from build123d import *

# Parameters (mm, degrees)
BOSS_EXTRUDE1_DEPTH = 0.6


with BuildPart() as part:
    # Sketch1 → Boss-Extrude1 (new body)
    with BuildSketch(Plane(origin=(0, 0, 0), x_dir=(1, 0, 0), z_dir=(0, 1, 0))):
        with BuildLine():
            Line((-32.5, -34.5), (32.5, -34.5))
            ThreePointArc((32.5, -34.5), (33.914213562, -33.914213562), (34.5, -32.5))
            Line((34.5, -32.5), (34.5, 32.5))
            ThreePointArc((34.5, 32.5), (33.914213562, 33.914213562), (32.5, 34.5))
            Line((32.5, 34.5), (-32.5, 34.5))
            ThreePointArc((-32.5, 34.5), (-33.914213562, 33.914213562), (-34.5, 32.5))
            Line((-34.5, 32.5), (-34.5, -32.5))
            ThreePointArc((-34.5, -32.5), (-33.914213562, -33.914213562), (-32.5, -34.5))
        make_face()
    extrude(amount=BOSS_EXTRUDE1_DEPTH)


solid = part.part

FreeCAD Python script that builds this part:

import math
import FreeCAD as App
import Part
import Sketcher

V = App.Vector
Q = App.Units.Quantity

doc = App.newDocument("Part")
body = doc.addObject("PartDesign::Body", "Body")

# Sketch on XZ plane
sketch1 = body.newObject("Sketcher::SketchObject", "Sketch")
sketch1.AttachmentSupport = (doc.getObject("XZ_Plane"), [""])
sketch1.MapMode = "FlatFace"
sketch1.addGeometry([
    Part.LineSegment(V(-32.5, 34.5, 0), V(32.5, 34.5, 0)),  # 0
    Part.ArcOfCircle(Part.Circle(V(32.5, 32.5, 0), V(0, 0, 1), 2), math.radians(0), math.radians(90)),  # 1
    Part.LineSegment(V(34.5, 32.5, 0), V(34.5, -32.5, 0)),  # 2
    Part.ArcOfCircle(Part.Circle(V(32.5, -32.5, 0), V(0, 0, 1), 2), math.radians(-90), math.radians(0)),  # 3
    Part.LineSegment(V(32.5, -34.5, 0), V(-32.5, -34.5, 0)),  # 4
    Part.ArcOfCircle(Part.Circle(V(-32.5, -32.5, 0), V(0, 0, 1), 2), math.radians(-180), math.radians(-90)),  # 5
    Part.LineSegment(V(-34.5, -32.5, 0), V(-34.5, 32.5, 0)),  # 6
    Part.ArcOfCircle(Part.Circle(V(-32.5, 32.5, 0), V(0, 0, 1), 2), math.radians(90), math.radians(180)),  # 7
], False)
sketch1.addConstraint([
    Sketcher.Constraint("Tangent", 0, 2, 1, 2),
    Sketcher.Constraint("Tangent", 1, 1, 2, 1),
    Sketcher.Constraint("Tangent", 2, 2, 3, 2),
    Sketcher.Constraint("Tangent", 3, 1, 4, 1),
    Sketcher.Constraint("Tangent", 4, 2, 5, 2),
    Sketcher.Constraint("Tangent", 5, 1, 6, 1),
    Sketcher.Constraint("Tangent", 6, 2, 7, 2),
    Sketcher.Constraint("Tangent", 7, 1, 0, 1),
    Sketcher.Constraint("Horizontal", 0),
    Sketcher.Constraint("Vertical", 2),
    Sketcher.Constraint("Horizontal", 4),
    Sketcher.Constraint("Vertical", 6),
    Sketcher.Constraint("Equal", 1, 3),
    Sketcher.Constraint("Equal", 3, 5),
    Sketcher.Constraint("Equal", 5, 7),
    Sketcher.Constraint("Symmetric", 1, 3, 5, 3, -1, 1),
    Sketcher.Constraint("Equal", 4, 2),
    Sketcher.Constraint("Radius", 1, Q("2 mm")),
    Sketcher.Constraint("DistanceX", 0, 1, 0, 2, Q("65 mm")),
])
pad1 = body.newObject("PartDesign::Pad", "Pad")
pad1.Profile = sketch1
pad1.Length = 0.6
pad1.Reversed = True

doc.recompute()
